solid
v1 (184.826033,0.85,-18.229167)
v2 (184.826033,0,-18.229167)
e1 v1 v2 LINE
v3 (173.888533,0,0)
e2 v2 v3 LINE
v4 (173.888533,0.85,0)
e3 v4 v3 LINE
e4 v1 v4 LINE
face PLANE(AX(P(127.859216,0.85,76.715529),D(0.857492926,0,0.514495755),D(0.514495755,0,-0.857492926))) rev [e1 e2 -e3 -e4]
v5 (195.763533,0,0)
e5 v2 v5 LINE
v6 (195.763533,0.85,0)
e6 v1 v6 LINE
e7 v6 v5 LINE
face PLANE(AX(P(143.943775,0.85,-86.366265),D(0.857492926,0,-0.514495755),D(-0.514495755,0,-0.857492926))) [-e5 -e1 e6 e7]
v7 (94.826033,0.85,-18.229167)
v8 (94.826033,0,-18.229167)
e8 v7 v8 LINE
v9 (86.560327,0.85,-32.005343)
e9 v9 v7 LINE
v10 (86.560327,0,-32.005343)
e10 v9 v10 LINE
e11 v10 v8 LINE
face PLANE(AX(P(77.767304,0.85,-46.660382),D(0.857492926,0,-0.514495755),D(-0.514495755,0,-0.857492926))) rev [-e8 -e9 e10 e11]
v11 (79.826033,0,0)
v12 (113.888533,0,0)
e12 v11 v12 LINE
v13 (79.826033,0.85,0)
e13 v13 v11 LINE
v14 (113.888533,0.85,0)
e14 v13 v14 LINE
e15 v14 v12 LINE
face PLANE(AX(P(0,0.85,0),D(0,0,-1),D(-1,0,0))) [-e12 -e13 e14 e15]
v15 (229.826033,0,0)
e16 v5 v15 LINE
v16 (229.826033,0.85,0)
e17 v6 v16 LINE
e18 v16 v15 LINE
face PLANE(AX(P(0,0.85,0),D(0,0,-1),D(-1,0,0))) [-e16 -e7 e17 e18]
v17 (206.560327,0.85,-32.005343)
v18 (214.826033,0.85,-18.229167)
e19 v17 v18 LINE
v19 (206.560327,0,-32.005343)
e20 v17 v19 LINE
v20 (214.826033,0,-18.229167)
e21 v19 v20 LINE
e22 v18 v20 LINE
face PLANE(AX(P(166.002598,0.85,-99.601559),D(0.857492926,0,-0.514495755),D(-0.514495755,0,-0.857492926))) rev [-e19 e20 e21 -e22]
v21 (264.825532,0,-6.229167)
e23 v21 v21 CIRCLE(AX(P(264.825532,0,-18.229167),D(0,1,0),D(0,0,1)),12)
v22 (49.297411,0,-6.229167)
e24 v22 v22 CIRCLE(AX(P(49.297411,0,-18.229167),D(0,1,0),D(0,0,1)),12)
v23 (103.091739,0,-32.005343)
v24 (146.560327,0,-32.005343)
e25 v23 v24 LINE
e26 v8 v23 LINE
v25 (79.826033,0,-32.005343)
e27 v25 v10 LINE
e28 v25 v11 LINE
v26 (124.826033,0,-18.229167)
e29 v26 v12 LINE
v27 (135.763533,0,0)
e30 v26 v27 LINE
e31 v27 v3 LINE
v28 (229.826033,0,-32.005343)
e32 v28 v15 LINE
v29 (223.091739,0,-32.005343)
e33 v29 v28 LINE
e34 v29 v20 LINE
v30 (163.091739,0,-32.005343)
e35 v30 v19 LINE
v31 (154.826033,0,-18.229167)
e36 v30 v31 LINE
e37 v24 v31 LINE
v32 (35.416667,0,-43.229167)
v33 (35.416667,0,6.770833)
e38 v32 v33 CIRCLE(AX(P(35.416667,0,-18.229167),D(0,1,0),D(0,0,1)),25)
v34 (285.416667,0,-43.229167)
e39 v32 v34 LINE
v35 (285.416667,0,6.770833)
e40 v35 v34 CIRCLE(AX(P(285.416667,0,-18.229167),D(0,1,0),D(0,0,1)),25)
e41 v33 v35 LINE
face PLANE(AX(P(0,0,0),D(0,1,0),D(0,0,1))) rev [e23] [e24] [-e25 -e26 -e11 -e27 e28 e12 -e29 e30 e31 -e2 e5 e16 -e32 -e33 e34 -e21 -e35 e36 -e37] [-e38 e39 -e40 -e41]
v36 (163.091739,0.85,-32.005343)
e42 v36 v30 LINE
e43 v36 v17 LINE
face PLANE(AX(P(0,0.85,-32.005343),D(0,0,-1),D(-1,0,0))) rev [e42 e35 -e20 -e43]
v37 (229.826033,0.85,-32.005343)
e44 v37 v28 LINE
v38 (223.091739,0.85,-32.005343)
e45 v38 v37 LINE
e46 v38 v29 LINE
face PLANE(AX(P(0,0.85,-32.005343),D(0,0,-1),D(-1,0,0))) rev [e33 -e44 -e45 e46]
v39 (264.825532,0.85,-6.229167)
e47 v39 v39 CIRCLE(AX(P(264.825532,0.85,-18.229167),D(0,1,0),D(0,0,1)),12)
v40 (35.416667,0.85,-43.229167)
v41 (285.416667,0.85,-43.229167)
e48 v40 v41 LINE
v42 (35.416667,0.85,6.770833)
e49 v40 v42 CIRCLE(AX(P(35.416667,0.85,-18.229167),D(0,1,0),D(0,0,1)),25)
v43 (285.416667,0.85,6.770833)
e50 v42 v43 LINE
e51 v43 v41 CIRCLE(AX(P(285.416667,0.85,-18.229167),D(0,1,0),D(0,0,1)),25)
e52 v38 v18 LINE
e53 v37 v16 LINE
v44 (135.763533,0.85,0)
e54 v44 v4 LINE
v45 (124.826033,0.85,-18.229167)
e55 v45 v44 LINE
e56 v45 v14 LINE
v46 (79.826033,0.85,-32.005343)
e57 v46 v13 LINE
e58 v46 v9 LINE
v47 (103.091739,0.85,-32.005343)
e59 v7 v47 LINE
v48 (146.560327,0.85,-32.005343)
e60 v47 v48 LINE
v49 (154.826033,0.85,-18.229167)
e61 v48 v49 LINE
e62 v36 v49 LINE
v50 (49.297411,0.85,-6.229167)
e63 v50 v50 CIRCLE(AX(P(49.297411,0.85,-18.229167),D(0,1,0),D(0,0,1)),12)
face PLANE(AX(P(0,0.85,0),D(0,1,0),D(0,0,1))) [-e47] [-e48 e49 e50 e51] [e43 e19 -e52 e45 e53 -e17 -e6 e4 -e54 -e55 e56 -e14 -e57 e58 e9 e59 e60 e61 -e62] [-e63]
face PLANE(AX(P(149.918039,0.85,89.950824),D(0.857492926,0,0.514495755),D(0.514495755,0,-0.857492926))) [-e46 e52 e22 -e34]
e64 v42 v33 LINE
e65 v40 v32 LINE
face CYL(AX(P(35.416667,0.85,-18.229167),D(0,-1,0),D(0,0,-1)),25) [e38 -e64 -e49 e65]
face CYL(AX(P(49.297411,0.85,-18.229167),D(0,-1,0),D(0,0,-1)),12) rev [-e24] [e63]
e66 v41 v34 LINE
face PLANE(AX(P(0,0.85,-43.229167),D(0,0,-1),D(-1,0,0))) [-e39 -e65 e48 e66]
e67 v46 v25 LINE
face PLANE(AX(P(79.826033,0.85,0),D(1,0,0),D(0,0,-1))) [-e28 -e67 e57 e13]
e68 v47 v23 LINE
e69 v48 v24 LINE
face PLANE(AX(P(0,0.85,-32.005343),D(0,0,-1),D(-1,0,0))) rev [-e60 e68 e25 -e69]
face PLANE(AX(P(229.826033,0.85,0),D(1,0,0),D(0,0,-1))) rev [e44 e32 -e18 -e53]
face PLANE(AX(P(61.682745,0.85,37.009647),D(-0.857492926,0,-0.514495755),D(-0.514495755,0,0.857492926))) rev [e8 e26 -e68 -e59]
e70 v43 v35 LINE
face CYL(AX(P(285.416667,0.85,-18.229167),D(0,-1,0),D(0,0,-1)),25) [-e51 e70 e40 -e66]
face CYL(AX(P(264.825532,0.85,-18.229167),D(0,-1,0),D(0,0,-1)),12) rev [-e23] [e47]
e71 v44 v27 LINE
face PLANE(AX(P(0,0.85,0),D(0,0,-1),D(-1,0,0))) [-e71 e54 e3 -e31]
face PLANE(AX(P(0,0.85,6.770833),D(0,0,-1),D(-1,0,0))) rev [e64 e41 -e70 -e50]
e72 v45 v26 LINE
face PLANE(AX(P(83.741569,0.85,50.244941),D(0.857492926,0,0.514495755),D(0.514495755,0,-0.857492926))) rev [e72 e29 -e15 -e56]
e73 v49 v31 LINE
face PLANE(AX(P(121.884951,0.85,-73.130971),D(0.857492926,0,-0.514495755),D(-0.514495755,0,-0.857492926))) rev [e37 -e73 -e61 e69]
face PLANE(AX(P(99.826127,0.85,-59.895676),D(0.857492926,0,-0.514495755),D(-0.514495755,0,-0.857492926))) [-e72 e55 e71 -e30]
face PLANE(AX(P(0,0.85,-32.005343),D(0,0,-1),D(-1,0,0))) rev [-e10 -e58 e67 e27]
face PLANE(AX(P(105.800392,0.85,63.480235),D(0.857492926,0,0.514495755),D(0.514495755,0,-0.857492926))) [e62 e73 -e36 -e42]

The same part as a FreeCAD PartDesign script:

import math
import FreeCAD as App
import Part
import Sketcher

V = App.Vector
Q = App.Units.Quantity


def add_polygon(sketch, points):
    """Adds a closed chain of lines whose ends are joined by coincident constraints."""
    first, n = sketch.GeometryCount, len(points)
    for a, b in zip(points, points[1:] + points[:1]):
        sketch.addGeometry(Part.LineSegment(App.Vector(*a, 0), App.Vector(*b, 0)), False)
    for i in range(n):
        sketch.addConstraint(Sketcher.Constraint("Coincident", first + i, 2, first + (i + 1) % n, 1))

doc = App.newDocument("Part")
body = doc.addObject("PartDesign::Body", "Body")

# Sketch on XZ plane
sketch1 = doc.addObject("Sketcher::SketchObject", "Sketch")
body.addObject(sketch1)
sketch1.AttachmentSupport = (doc.XZ_Plane, [""])
sketch1.MapMode = "FlatFace"
sketch1.addGeometry(Part.ArcOfCircle(Part.Circle(V(35, -18, 0), V(0, 0, 1), 25), math.radians(90), math.radians(270)), False)  # 0
sketch1.addGeometry(Part.LineSegment(V(35, 7, 0), V(285, 7, 0)), False)  # 1
sketch1.addGeometry(Part.ArcOfCircle(Part.Circle(V(285, -18, 0), V(0, 0, 1), 25), math.radians(-90), math.radians(90)), False)  # 2
sketch1.addGeometry(Part.LineSegment(V(285, -43, 0), V(35, -43, 0)), False)  # 3
add_polygon(sketch1, [(87, -32), (95, -18), (103, -32), (147, -32), (155, -18), (163, -32), (207, -32), (215, -18), (223, -32), (230, -32), (230, 0), (196, 0), (185, -18), (174, 0), (136, 0), (125, -18), (114, 0), (80, 0), (80, -32)])  # lines 4-22
sketch1.addGeometry(Part.Circle(V(49, -18, 0), V(0, 0, 1), 12), False)  # 23
sketch1.addGeometry(Part.Circle(V(265, -18, 0), V(0, 0, 1), 12), False)  # 24
sketch1.addConstraint([
    Sketcher.Constraint("Tangent", 0, 1, 1, 1),
    Sketcher.Constraint("Tangent", 1, 2, 2, 2),
    Sketcher.Constraint("Tangent", 2, 1, 3, 1),
    Sketcher.Constraint("Tangent", 3, 2, 0, 2),
    Sketcher.Constraint("Horizontal", 1),
    Sketcher.Constraint("Horizontal", 3),
    Sketcher.Constraint("Horizontal", 6),
    Sketcher.Constraint("Horizontal", 9),
    Sketcher.Constraint("Horizontal", 12),
    Sketcher.Constraint("Vertical", 13),
    Sketcher.Constraint("Horizontal", 14),
    Sketcher.Constraint("Horizontal", 17),
    Sketcher.Constraint("Horizontal", 20),
    Sketcher.Constraint("Vertical", 21),
    Sketcher.Constraint("Horizontal", 22),
    Sketcher.Constraint("Equal", 23, 24),
    Sketcher.Constraint("PointOnObject", 13, 2, -1),
    Sketcher.Constraint("PointOnObject", 16, 2, -1),
    Sketcher.Constraint("PointOnObject", 19, 2, -1),
    Sketcher.Constraint("Parallel", 4, 7),
    Sketcher.Constraint("Parallel", 5, 8),
    Sketcher.Constraint("Parallel", 7, 10),
    Sketcher.Constraint("Parallel", 8, 11),
    Sketcher.Constraint("Parallel", 10, 15),
    Sketcher.Constraint("Parallel", 11, 16),
    Sketcher.Constraint("Parallel", 15, 18),
    Sketcher.Constraint("Parallel", 16, 19),
    Sketcher.Constraint("Horizontal", 2, 3, 23, 3),
    Sketcher.Constraint("Horizontal", 23, 3, 24, 3),
    Sketcher.Constraint("Horizontal", 24, 3, 4, 2),
    Sketcher.Constraint("Horizontal", 4, 2, 7, 2),
    Sketcher.Constraint("Horizontal", 6, 2, 8, 2),
    Sketcher.Constraint("Horizontal", 7, 2, 10, 2),
    Sketcher.Constraint("Horizontal", 9, 2, 11, 2),
    Sketcher.Constraint("Horizontal", 10, 2, 15, 2),
    Sketcher.Constraint("Horizontal", 15, 2, 18, 2),
    Sketcher.Constraint("Horizontal", 12, 2, 21, 2),
    Sketcher.Constraint("Equal", 6, 9),
    Sketcher.Constraint("Equal", 14, 20),
    Sketcher.Constraint("Equal", 12, 22),
    Sketcher.Constraint("Equal", 4, 5),
    Sketcher.Constraint("Diameter", 23, Q("24 mm")),
    Sketcher.Constraint("Radius", 0, Q("25 mm")),
    Sketcher.Constraint("DistanceX", 1, 1, 1, 2, Q("250 mm")),
    Sketcher.Constraint("DistanceX", 4, 2, 7, 2, Q("60 mm")),
    Sketcher.Constraint("DistanceX", 10, 2, 12, 2, Q("15 mm")),
    Sketcher.Constraint("DistanceX", 7, 2, 15, 2, Q("30 mm")),
    Sketcher.Constraint("DistanceX", 17, 2, 17, 1, Q("38.125 mm")),
    Sketcher.Constraint("DistanceX", 6, 1, 6, 2, Q("43.468588 mm")),
    Sketcher.Constraint("DistanceX", 4, 2, 24, 3, Q("169.999499 mm")),
    Sketcher.Constraint("Distance", 15, Q("21.258679 mm")),
    Sketcher.Constraint("DistanceX", -1, 1, 23, 3, Q("49.297411 mm")),
    Sketcher.Constraint("DistanceX", -1, 1, 5, 2, Q("103.091739 mm")),
    Sketcher.Constraint("DistanceX", 3, 2, 6, 2, Q("111.143661 mm")),
])
pad1 = doc.addObject("PartDesign::Pad", "Pad")
body.addObject(pad1)
pad1.Profile = sketch1
pad1.Length = 0.85
pad1.Reversed = True

doc.recompute()
